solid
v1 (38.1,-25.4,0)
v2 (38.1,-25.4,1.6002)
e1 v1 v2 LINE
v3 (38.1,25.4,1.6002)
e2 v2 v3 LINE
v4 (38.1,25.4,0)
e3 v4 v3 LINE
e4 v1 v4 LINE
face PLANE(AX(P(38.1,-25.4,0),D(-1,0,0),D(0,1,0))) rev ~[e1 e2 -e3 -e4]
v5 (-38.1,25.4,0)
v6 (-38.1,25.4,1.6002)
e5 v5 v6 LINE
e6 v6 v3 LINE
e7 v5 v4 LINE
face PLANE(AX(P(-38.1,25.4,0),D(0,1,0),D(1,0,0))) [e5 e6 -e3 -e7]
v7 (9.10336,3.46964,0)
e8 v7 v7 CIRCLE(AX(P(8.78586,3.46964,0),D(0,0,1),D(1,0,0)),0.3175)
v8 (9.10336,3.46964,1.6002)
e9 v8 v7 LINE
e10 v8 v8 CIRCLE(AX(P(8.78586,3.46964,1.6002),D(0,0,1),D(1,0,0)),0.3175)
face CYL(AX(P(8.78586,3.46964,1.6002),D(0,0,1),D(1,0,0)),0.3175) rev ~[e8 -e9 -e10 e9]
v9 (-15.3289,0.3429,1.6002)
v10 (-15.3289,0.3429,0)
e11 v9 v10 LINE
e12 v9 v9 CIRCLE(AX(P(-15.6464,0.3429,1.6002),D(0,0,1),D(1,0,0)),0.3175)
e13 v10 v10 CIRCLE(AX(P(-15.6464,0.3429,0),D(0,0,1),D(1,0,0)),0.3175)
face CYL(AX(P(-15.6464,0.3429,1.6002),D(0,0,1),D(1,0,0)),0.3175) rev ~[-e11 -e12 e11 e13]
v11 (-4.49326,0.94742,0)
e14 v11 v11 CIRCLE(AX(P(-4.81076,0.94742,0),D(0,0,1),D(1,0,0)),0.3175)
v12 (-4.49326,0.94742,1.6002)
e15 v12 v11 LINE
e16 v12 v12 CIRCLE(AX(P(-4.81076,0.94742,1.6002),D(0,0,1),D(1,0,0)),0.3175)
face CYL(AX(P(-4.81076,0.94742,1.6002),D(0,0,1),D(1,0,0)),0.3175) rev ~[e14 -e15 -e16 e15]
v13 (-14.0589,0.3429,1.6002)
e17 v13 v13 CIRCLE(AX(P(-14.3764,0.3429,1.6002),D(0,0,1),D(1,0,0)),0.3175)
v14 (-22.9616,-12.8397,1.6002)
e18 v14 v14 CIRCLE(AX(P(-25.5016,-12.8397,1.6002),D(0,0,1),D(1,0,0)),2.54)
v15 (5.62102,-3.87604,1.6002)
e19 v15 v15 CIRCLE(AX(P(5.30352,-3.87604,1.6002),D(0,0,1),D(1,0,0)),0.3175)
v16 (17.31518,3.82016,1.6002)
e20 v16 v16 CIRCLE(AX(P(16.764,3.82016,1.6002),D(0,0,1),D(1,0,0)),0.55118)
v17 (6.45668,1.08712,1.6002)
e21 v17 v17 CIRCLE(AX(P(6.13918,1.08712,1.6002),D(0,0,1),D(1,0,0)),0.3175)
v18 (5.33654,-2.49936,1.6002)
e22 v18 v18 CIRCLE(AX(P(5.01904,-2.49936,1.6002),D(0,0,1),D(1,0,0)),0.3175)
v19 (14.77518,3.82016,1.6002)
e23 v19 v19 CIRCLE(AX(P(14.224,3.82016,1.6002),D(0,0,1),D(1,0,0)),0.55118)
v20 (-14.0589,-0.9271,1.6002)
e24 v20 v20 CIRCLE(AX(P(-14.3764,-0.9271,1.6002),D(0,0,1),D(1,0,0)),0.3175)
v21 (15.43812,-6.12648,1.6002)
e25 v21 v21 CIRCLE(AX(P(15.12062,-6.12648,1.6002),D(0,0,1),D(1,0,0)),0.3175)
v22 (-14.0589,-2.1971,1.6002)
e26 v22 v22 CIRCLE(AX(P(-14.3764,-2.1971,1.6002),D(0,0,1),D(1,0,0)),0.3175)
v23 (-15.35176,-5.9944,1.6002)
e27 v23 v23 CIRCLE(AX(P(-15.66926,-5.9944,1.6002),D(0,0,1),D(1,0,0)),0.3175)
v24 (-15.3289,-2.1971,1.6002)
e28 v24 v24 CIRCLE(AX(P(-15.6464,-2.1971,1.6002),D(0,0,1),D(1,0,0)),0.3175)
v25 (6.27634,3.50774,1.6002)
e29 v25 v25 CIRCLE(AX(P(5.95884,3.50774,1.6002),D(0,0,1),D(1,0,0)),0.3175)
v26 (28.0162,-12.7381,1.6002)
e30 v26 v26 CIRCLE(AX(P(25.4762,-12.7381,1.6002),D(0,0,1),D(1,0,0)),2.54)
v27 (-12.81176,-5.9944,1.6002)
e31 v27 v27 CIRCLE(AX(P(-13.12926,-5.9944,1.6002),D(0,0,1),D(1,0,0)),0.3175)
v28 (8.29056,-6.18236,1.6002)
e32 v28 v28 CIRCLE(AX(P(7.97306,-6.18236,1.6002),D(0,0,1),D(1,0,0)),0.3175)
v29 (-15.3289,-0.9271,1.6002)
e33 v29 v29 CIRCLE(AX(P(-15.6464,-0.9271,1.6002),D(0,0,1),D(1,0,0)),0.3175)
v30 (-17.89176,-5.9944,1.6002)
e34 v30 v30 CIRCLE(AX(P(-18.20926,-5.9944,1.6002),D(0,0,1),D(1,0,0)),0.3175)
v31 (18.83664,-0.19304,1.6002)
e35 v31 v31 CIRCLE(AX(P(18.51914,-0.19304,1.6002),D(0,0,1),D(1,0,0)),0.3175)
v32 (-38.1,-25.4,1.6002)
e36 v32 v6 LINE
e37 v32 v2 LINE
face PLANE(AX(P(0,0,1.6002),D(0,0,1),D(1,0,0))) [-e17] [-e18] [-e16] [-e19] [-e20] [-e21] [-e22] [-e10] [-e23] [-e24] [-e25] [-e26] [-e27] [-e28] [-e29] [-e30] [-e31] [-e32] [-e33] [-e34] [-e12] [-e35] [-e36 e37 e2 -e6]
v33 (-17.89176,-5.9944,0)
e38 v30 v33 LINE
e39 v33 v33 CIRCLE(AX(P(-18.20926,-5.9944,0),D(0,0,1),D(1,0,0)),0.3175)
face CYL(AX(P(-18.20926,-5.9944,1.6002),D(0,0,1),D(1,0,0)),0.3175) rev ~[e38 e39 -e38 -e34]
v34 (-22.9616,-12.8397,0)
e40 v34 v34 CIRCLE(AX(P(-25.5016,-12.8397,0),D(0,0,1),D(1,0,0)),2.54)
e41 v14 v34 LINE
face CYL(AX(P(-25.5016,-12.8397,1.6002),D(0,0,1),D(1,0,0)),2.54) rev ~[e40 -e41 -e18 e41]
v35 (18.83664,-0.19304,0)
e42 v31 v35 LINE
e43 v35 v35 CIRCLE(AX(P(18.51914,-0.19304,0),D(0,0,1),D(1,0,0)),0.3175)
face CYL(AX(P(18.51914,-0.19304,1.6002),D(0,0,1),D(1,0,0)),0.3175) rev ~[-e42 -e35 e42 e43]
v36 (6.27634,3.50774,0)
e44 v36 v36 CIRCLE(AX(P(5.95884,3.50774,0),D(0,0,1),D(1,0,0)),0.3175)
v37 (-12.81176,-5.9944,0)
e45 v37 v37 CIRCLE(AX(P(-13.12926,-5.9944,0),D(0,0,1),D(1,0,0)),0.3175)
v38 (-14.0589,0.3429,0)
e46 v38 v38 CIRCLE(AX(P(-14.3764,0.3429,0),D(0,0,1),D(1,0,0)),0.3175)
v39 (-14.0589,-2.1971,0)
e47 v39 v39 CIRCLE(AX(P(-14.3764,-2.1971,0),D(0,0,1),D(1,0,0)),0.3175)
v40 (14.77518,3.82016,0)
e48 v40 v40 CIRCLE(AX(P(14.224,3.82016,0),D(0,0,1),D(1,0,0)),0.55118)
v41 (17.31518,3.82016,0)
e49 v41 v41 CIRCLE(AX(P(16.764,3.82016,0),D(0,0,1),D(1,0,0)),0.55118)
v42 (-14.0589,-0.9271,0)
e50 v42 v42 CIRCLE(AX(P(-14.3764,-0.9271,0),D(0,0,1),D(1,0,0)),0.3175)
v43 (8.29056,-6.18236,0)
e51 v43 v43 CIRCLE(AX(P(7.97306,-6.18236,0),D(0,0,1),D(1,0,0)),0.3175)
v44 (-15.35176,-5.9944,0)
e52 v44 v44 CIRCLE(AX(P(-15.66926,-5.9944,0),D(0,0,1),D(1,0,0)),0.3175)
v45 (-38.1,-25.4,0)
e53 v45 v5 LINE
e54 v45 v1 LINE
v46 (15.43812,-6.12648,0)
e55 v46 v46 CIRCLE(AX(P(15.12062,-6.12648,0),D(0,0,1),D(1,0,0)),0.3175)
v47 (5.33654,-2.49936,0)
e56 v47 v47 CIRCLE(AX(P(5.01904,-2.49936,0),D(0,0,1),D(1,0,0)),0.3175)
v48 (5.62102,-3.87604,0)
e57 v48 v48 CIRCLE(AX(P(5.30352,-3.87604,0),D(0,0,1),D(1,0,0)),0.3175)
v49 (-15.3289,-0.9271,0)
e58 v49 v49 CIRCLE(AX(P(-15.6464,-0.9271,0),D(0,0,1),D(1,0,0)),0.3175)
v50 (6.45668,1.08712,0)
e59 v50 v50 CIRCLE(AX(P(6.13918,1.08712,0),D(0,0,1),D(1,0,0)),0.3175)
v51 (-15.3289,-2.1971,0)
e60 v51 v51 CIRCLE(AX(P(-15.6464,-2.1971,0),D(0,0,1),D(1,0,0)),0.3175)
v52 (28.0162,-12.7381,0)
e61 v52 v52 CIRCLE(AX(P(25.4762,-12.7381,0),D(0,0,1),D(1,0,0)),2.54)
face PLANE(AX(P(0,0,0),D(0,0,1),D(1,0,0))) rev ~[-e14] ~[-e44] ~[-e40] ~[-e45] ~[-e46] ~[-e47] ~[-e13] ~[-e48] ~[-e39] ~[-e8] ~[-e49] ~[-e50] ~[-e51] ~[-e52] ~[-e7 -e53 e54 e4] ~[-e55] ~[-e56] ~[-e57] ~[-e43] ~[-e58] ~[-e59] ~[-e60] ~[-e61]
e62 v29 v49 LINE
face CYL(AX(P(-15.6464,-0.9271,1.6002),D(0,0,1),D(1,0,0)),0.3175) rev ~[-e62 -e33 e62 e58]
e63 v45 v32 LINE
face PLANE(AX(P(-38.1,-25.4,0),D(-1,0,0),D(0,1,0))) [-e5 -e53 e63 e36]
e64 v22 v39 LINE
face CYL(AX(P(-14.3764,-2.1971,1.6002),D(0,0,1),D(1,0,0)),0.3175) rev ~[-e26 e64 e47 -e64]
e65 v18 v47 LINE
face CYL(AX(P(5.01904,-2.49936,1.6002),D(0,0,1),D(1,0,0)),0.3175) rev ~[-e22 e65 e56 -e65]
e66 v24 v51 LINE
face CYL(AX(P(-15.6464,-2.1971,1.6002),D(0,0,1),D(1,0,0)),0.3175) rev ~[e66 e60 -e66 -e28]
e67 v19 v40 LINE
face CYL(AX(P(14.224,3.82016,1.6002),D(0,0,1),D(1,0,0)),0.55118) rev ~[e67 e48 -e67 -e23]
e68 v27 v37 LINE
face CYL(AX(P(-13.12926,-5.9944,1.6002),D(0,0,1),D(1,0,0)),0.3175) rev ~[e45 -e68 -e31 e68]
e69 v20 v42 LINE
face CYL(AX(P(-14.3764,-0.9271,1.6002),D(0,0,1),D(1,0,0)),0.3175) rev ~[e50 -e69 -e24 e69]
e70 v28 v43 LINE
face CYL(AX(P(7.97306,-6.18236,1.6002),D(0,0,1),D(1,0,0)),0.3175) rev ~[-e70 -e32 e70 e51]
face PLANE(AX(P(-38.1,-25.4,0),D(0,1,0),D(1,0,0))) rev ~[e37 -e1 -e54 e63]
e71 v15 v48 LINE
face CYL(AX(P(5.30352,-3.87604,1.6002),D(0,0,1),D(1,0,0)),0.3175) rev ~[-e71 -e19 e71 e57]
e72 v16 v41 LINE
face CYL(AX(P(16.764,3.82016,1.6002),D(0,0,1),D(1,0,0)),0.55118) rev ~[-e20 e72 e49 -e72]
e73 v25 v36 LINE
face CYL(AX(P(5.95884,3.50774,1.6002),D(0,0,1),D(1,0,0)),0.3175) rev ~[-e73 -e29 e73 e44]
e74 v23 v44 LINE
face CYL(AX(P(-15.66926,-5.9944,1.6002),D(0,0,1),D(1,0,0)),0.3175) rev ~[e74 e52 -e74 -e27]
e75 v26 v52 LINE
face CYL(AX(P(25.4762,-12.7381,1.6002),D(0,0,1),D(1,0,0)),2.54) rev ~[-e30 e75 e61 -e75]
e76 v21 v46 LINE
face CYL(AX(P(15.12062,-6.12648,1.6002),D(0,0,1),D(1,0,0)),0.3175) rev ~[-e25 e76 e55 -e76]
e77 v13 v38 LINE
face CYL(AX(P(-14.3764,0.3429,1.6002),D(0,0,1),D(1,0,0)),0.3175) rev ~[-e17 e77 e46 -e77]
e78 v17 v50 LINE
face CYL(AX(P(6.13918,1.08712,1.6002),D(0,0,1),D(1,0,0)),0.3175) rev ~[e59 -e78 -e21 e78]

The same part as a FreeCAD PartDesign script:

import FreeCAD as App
import Part
import Sketcher
Q = App.Units.Quantity

doc = App.newDocument("Part")
body = doc.addObject("PartDesign::Body", "Body")

# Sketch on XY plane
sketch1 = body.newObject("Sketcher::SketchObject", "Sketch")
sketch1.AttachmentSupport = (doc.getObject("XY_Plane"), [""])
sketch1.MapMode = "FlatFace"
sketch1.addGeometry([
    Part.LineSegment(App.Vector(-38, 25, 0), App.Vector(-38, -25, 0)),
    Part.LineSegment(App.Vector(-38, -25, 0), App.Vector(38, -25, 0)),
    Part.LineSegment(App.Vector(38, -25, 0), App.Vector(38, 25, 0)),
    Part.LineSegment(App.Vector(38, 25, 0), App.Vector(-38, 25, 0)),
], False)
sketch1.addConstraint([
    Sketcher.Constraint("Coincident", 0, 2, 1, 1),
    Sketcher.Constraint("Coincident", 1, 2, 2, 1),
    Sketcher.Constraint("Coincident", 2, 2, 3, 1),
    Sketcher.Constraint("Coincident", 3, 2, 0, 1),
    Sketcher.Constraint("Vertical", 0),
    Sketcher.Constraint("Horizontal", 1),
    Sketcher.Constraint("Vertical", 2),
    Sketcher.Constraint("Horizontal", 3),
    Sketcher.Constraint("Symmetric", 0, 2, 2, 2, -1, 1),
    Sketcher.Constraint("DistanceX", 1, 1, 1, 2, Q("3 in")),
    Sketcher.Constraint("DistanceY", 0, 2, 0, 1, Q("2 in")),
])
pad1 = body.newObject("PartDesign::Pad", "Pad")
pad1.Profile = sketch1
pad1.Length = Q("0.063 in")

# Sketch on XY plane
sketch2 = body.newObject("Sketcher::SketchObject", "Sketch001")
sketch2.AttachmentSupport = (doc.getObject("XY_Plane"), [""])
sketch2.MapMode = "FlatFace"
sketch2.AttachmentOffset = App.Placement(App.Vector(0, 0, 0.063 * 25.4), App.Rotation())
sketch2.addGeometry([
    Part.Circle(App.Vector(-25.5, -12.84, 0), App.Vector(0, 0, 1), 2.54),  # 0
    Part.Circle(App.Vector(25.48, -12.74, 0), App.Vector(0, 0, 1), 2.54),  # 1
    Part.Circle(App.Vector(-18.21, -5.99, 0), App.Vector(0, 0, 1), 0.32),  # 2
    Part.Circle(App.Vector(-15.67, -5.99, 0), App.Vector(0, 0, 1), 0.32),  # 3
    Part.Circle(App.Vector(-13.13, -5.99, 0), App.Vector(0, 0, 1), 0.32),  # 4
    Part.Circle(App.Vector(-15.65, -2.2, 0), App.Vector(0, 0, 1), 0.32),  # 5
    Part.Circle(App.Vector(-14.38, -2.2, 0), App.Vector(0, 0, 1), 0.32),  # 6
    Part.Circle(App.Vector(-14.38, -0.93, 0), App.Vector(0, 0, 1), 0.32),  # 7
    Part.Circle(App.Vector(-15.65, -0.93, 0), App.Vector(0, 0, 1), 0.32),  # 8
    Part.Circle(App.Vector(-15.65, 0.34, 0), App.Vector(0, 0, 1), 0.32),  # 9
    Part.Circle(App.Vector(-14.38, 0.34, 0), App.Vector(0, 0, 1), 0.32),  # 10
    Part.Circle(App.Vector(5.3, -3.88, 0), App.Vector(0, 0, 1), 0.32),  # 11
    Part.Circle(App.Vector(5.02, -2.5, 0), App.Vector(0, 0, 1), 0.32),  # 12
    Part.Circle(App.Vector(-4.81, 0.95, 0), App.Vector(0, 0, 1), 0.32),  # 13
    Part.Circle(App.Vector(6.14, 1.09, 0), App.Vector(0, 0, 1), 0.32),  # 14
    Part.Circle(App.Vector(5.96, 3.51, 0), App.Vector(0, 0, 1), 0.32),  # 15
    Part.Circle(App.Vector(8.79, 3.47, 0), App.Vector(0, 0, 1), 0.32),  # 16
    Part.Circle(App.Vector(14.22, 3.82, 0), App.Vector(0, 0, 1), 0.55),  # 17
    Part.Circle(App.Vector(16.76, 3.82, 0), App.Vector(0, 0, 1), 0.55),  # 18
    Part.Circle(App.Vector(18.52, -0.19, 0), App.Vector(0, 0, 1), 0.32),  # 19
    Part.Circle(App.Vector(7.97, -6.18, 0), App.Vector(0, 0, 1), 0.32),  # 20
    Part.Circle(App.Vector(15.12, -6.13, 0), App.Vector(0, 0, 1), 0.32),  # 21
], False)
sketch2.addConstraint([
    Sketcher.Constraint("Equal", 0, 1),
    Sketcher.Constraint("Equal", 2, 3),
    Sketcher.Constraint("Equal", 3, 4),
    Sketcher.Constraint("Equal", 4, 5),
    Sketcher.Constraint("Equal", 5, 6),
    Sketcher.Constraint("Equal", 6, 7),
    Sketcher.Constraint("Equal", 7, 8),
    Sketcher.Constraint("Equal", 8, 9),
    Sketcher.Constraint("Equal", 9, 10),
    Sketcher.Constraint("Equal", 10, 11),
    Sketcher.Constraint("Equal", 11, 12),
    Sketcher.Constraint("Equal", 12, 13),
    Sketcher.Constraint("Equal", 13, 14),
    Sketcher.Constraint("Equal", 14, 15),
    Sketcher.Constraint("Equal", 15, 16),
    Sketcher.Constraint("Equal", 17, 18),
    Sketcher.Constraint("Equal", 16, 19),
    Sketcher.Constraint("Equal", 19, 20),
    Sketcher.Constraint("Equal", 20, 21),
    Sketcher.Constraint("Horizontal", 2, 3, 3, 3),
    Sketcher.Constraint("Horizontal", 3, 3, 4, 3),
    Sketcher.Constraint("Horizontal", 5, 3, 6, 3),
    Sketcher.Constraint("Horizontal", 7, 3, 8, 3),
    Sketcher.Constraint("Horizontal", 9, 3, 10, 3),
    Sketcher.Constraint("Horizontal", 17, 3, 18, 3),
    Sketcher.Constraint("Vertical", 6, 3, 7, 3),
    Sketcher.Constraint("Vertical", 5, 3, 8, 3),
    Sketcher.Constraint("Vertical", 8, 3, 9, 3),
    Sketcher.Constraint("Vertical", 7, 3, 10, 3),
    Sketcher.Constraint("Diameter", 0, Q("0.2 in")),
    Sketcher.Constraint("Diameter", 2, Q("0.025 in")),
    Sketcher.Constraint("Diameter", 17, Q("0.0434 in")),
    Sketcher.Constraint("DistanceX", 2, 3, 3, 3, Q("0.1 in")),
    Sketcher.Constraint("DistanceX", 3, 3, 4, 3, Q("0.1 in")),
    Sketcher.Constraint("DistanceY", 5, 3, 9, 3, Q("0.1 in")),
    Sketcher.Constraint("DistanceX", 17, 3, 18, 3, Q("0.1 in")),
    Sketcher.Constraint("DistanceX", -1, 1, 17, 3, Q("0.56 in")),
    Sketcher.Constraint("DistanceX", 5, 3, 6, 3, Q("0.05 in")),
    Sketcher.Constraint("DistanceY", 6, 3, 7, 3, Q("0.05 in")),
    Sketcher.Constraint("DistanceY", 20, 3, 16, 3, Q("0.38 in")),
    Sketcher.Constraint("DistanceX", 0, 3, -1, 1, Q("1.004 in")),
    Sketcher.Constraint("DistanceX", -1, 1, 1, 3, Q("1.003 in")),
    Sketcher.Constraint("DistanceY", 2, 3, -1, 1, Q("0.236 in")),
    Sketcher.Constraint("DistanceX", 5, 3, -1, 1, Q("0.616 in")),
    Sketcher.Constraint("DistanceY", 0, 3, 1, 3, Q("0.004 in")),
    Sketcher.Constraint("DistanceY", 0, 3, 5, 3, Q("0.419 in")),
    Sketcher.Constraint("DistanceX", 13, 3, 12, 3, Q("0.387 in")),
    Sketcher.Constraint("DistanceX", 12, 3, 15, 3, Q("0.037 in")),
    Sketcher.Constraint("DistanceY", 12, 3, 16, 3, Q("0.235 in")),
    Sketcher.Constraint("DistanceY", 11, 3, 17, 3, Q("0.303 in")),
    Sketcher.Constraint("DistanceY", 19, 3, 18, 3, Q("0.158 in")),
    Sketcher.Constraint("DistanceX", 20, 3, 16, 3, Q("0.032 in")),
    Sketcher.Constraint("DistanceY", 0, 3, -1, 1, Q("0.5055 in")),
    Sketcher.Constraint("DistanceX", 2, 3, -1, 1, Q("0.7169 in")),
    Sketcher.Constraint("DistanceX", -1, 1, 11, 3, Q("0.2088 in")),
    Sketcher.Constraint("DistanceY", 11, 3, -1, 1, Q("0.1526 in")),
    Sketcher.Constraint("DistanceX", -1, 1, 12, 3, Q("0.1976 in")),
    Sketcher.Constraint("DistanceY", 12, 3, -1, 1, Q("0.0984 in")),
    Sketcher.Constraint("DistanceY", -1, 1, 13, 3, Q("0.0373 in")),
    Sketcher.Constraint("DistanceX", -1, 1, 14, 3, Q("0.2417 in")),
    Sketcher.Constraint("DistanceY", -1, 1, 14, 3, Q("0.0428 in")),
    Sketcher.Constraint("DistanceY", -1, 1, 15, 3, Q("0.1381 in")),
    Sketcher.Constraint("DistanceX", -1, 1, 16, 3, Q("0.3459 in")),
    Sketcher.Constraint("DistanceX", -1, 1, 19, 3, Q("0.7291 in")),
    Sketcher.Constraint("DistanceX", -1, 1, 21, 3, Q("0.5953 in")),
    Sketcher.Constraint("DistanceY", 21, 3, -1, 1, Q("0.2412 in")),
])
pocket1 = body.newObject("PartDesign::Pocket", "Pocket")
pocket1.Profile = sketch2
pocket1.Type = "ThroughAll"

doc.recompute()
